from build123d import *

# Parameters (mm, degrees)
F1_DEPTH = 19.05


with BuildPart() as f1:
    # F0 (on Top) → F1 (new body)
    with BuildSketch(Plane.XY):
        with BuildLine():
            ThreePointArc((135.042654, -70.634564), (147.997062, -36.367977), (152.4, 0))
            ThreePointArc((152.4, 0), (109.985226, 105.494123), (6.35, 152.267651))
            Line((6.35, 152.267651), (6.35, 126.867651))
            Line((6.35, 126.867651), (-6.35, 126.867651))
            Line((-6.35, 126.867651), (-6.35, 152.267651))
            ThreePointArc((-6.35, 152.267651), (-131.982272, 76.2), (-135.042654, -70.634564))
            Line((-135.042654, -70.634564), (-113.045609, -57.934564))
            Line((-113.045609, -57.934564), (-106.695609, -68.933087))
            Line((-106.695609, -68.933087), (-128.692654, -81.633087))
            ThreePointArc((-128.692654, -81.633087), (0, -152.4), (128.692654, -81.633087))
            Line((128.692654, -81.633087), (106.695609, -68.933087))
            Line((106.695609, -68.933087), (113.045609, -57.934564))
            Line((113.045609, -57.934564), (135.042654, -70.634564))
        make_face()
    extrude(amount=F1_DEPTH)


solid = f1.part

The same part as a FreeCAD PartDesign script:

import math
import FreeCAD as App
import Part
import Sketcher
from FreeCAD import Vector
Q = App.Units.Quantity

doc = App.newDocument("Part")
body = doc.addObject("PartDesign::Body", "Body")

sketch1 = doc.addObject("Sketcher::SketchObject", "Sketch")
body.addObject(sketch1)
sketch1.AttachmentSupport = (doc.XY_Plane, [""])
sketch1.MapMode = "FlatFace"
sketch1.addGeometry(Part.ArcOfCircle(Part.Circle(Vector(0, 0, 0), Vector(0, 0, 1), 152), math.radians(-28), math.radians(0)), False)
sketch1.addGeometry(Part.ArcOfCircle(Part.Circle(Vector(0, 0, 0), Vector(0, 0, 1), 152), math.radians(0), math.radians(88)), False)
sketch1.addGeometry(Part.LineSegment(Vector(6, 152, 0), Vector(6, 127, 0)), False)
sketch1.addGeometry(Part.LineSegment(Vector(6, 127, 0), Vector(-6, 127, 0)), False)
sketch1.addGeometry(Part.LineSegment(Vector(-6, 127, 0), Vector(-6, 152, 0)), False)
sketch1.addGeometry(Part.ArcOfCircle(Part.Circle(Vector(0, 0, 0), Vector(0, 0, 1), 152), math.radians(92), math.radians(208)), False)
sketch1.addGeometry(Part.LineSegment(Vector(-135, -71, 0), Vector(-113, -58, 0)), False)
sketch1.addGeometry(Part.LineSegment(Vector(-113, -58, 0), Vector(-107, -69, 0)), False)
sketch1.addGeometry(Part.LineSegment(Vector(-107, -69, 0), Vector(-129, -82, 0)), False)
sketch1.addGeometry(Part.ArcOfCircle(Part.Circle(Vector(0, 0, 0), Vector(0, 0, 1), 152), math.radians(-148), math.radians(-32)), False)
sketch1.addGeometry(Part.LineSegment(Vector(129, -82, 0), Vector(107, -69, 0)), False)
sketch1.addGeometry(Part.LineSegment(Vector(107, -69, 0), Vector(113, -58, 0)), False)
sketch1.addGeometry(Part.LineSegment(Vector(113, -58, 0), Vector(135, -71, 0)), False)
sketch1.addConstraint(Sketcher.Constraint("Tangent", 0, 2, 1, 1))
sketch1.addConstraint(Sketcher.Constraint("Coincident", 1, 2, 2, 1))
sketch1.addConstraint(Sketcher.Constraint("Coincident", 2, 2, 3, 1))
sketch1.addConstraint(Sketcher.Constraint("Coincident", 3, 2, 4, 1))
sketch1.addConstraint(Sketcher.Constraint("Coincident", 4, 2, 5, 1))
sketch1.addConstraint(Sketcher.Constraint("Coincident", 5, 2, 6, 1))
sketch1.addConstraint(Sketcher.Constraint("Coincident", 6, 2, 7, 1))
sketch1.addConstraint(Sketcher.Constraint("Coincident", 7, 2, 8, 1))
sketch1.addConstraint(Sketcher.Constraint("Coincident", 8, 2, 9, 1))
sketch1.addConstraint(Sketcher.Constraint("Coincident", 9, 2, 10, 1))
sketch1.addConstraint(Sketcher.Constraint("Coincident", 10, 2, 11, 1))
sketch1.addConstraint(Sketcher.Constraint("Coincident", 11, 2, 12, 1))
sketch1.addConstraint(Sketcher.Constraint("Coincident", 12, 2, 0, 1))
sketch1.addConstraint(Sketcher.Constraint("Vertical", 2))
sketch1.addConstraint(Sketcher.Constraint("Horizontal", 3))
sketch1.addConstraint(Sketcher.Constraint("Vertical", 4))
sketch1.addConstraint(Sketcher.Constraint("Coincident", 1, 3, -1, 1))
sketch1.addConstraint(Sketcher.Constraint("Coincident", 5, 3, -1, 1))
sketch1.addConstraint(Sketcher.Constraint("Coincident", 9, 3, -1, 1))
sketch1.addConstraint(Sketcher.Constraint("Equal", 1, 5))
sketch1.addConstraint(Sketcher.Constraint("Equal", 5, 9))
sketch1.addConstraint(Sketcher.Constraint("Symmetric", 7, 2, 10, 2, -2))
sketch1.addConstraint(Sketcher.Constraint("Symmetric", 6, 2, 11, 2, -2))
sketch1.addConstraint(Sketcher.Constraint("PointOnObject", 0, 2, -1))
sketch1.addConstraint(Sketcher.Constraint("Perpendicular", 6, 7))
sketch1.addConstraint(Sketcher.Constraint("Perpendicular", 7, 8))
sketch1.addConstraint(Sketcher.Constraint("Perpendicular", 10, 11))
sketch1.addConstraint(Sketcher.Constraint("Perpendicular", 11, 12))
sketch1.addConstraint(Sketcher.Constraint("Horizontal", 1, 2, 4, 2))
sketch1.addConstraint(Sketcher.Constraint("Equal", 6, 8))
sketch1.addConstraint(Sketcher.Constraint("Equal", 10, 12))
sketch1.addConstraint(Sketcher.Constraint("Radius", 1, Q("6 in")))
sketch1.addConstraint(Sketcher.Constraint("DistanceY", 2, 2, 2, 1, Q("1 in")))
sketch1.addConstraint(Sketcher.Constraint("Distance", 6, Q("1 in")))
sketch1.addConstraint(Sketcher.Constraint("DistanceX", 3, 2, 3, 1, Q("0.5 in")))
sketch1.addConstraint(Sketcher.Constraint("Angle", 6, Q("30 deg")))
sketch1.addConstraint(Sketcher.Constraint("Distance", 7, Q("0.5 in")))
pad1 = doc.addObject("PartDesign::Pad", "Pad")
body.addObject(pad1)
pad1.Profile = sketch1
pad1.Length = Q("0.75 in")

doc.recompute()
